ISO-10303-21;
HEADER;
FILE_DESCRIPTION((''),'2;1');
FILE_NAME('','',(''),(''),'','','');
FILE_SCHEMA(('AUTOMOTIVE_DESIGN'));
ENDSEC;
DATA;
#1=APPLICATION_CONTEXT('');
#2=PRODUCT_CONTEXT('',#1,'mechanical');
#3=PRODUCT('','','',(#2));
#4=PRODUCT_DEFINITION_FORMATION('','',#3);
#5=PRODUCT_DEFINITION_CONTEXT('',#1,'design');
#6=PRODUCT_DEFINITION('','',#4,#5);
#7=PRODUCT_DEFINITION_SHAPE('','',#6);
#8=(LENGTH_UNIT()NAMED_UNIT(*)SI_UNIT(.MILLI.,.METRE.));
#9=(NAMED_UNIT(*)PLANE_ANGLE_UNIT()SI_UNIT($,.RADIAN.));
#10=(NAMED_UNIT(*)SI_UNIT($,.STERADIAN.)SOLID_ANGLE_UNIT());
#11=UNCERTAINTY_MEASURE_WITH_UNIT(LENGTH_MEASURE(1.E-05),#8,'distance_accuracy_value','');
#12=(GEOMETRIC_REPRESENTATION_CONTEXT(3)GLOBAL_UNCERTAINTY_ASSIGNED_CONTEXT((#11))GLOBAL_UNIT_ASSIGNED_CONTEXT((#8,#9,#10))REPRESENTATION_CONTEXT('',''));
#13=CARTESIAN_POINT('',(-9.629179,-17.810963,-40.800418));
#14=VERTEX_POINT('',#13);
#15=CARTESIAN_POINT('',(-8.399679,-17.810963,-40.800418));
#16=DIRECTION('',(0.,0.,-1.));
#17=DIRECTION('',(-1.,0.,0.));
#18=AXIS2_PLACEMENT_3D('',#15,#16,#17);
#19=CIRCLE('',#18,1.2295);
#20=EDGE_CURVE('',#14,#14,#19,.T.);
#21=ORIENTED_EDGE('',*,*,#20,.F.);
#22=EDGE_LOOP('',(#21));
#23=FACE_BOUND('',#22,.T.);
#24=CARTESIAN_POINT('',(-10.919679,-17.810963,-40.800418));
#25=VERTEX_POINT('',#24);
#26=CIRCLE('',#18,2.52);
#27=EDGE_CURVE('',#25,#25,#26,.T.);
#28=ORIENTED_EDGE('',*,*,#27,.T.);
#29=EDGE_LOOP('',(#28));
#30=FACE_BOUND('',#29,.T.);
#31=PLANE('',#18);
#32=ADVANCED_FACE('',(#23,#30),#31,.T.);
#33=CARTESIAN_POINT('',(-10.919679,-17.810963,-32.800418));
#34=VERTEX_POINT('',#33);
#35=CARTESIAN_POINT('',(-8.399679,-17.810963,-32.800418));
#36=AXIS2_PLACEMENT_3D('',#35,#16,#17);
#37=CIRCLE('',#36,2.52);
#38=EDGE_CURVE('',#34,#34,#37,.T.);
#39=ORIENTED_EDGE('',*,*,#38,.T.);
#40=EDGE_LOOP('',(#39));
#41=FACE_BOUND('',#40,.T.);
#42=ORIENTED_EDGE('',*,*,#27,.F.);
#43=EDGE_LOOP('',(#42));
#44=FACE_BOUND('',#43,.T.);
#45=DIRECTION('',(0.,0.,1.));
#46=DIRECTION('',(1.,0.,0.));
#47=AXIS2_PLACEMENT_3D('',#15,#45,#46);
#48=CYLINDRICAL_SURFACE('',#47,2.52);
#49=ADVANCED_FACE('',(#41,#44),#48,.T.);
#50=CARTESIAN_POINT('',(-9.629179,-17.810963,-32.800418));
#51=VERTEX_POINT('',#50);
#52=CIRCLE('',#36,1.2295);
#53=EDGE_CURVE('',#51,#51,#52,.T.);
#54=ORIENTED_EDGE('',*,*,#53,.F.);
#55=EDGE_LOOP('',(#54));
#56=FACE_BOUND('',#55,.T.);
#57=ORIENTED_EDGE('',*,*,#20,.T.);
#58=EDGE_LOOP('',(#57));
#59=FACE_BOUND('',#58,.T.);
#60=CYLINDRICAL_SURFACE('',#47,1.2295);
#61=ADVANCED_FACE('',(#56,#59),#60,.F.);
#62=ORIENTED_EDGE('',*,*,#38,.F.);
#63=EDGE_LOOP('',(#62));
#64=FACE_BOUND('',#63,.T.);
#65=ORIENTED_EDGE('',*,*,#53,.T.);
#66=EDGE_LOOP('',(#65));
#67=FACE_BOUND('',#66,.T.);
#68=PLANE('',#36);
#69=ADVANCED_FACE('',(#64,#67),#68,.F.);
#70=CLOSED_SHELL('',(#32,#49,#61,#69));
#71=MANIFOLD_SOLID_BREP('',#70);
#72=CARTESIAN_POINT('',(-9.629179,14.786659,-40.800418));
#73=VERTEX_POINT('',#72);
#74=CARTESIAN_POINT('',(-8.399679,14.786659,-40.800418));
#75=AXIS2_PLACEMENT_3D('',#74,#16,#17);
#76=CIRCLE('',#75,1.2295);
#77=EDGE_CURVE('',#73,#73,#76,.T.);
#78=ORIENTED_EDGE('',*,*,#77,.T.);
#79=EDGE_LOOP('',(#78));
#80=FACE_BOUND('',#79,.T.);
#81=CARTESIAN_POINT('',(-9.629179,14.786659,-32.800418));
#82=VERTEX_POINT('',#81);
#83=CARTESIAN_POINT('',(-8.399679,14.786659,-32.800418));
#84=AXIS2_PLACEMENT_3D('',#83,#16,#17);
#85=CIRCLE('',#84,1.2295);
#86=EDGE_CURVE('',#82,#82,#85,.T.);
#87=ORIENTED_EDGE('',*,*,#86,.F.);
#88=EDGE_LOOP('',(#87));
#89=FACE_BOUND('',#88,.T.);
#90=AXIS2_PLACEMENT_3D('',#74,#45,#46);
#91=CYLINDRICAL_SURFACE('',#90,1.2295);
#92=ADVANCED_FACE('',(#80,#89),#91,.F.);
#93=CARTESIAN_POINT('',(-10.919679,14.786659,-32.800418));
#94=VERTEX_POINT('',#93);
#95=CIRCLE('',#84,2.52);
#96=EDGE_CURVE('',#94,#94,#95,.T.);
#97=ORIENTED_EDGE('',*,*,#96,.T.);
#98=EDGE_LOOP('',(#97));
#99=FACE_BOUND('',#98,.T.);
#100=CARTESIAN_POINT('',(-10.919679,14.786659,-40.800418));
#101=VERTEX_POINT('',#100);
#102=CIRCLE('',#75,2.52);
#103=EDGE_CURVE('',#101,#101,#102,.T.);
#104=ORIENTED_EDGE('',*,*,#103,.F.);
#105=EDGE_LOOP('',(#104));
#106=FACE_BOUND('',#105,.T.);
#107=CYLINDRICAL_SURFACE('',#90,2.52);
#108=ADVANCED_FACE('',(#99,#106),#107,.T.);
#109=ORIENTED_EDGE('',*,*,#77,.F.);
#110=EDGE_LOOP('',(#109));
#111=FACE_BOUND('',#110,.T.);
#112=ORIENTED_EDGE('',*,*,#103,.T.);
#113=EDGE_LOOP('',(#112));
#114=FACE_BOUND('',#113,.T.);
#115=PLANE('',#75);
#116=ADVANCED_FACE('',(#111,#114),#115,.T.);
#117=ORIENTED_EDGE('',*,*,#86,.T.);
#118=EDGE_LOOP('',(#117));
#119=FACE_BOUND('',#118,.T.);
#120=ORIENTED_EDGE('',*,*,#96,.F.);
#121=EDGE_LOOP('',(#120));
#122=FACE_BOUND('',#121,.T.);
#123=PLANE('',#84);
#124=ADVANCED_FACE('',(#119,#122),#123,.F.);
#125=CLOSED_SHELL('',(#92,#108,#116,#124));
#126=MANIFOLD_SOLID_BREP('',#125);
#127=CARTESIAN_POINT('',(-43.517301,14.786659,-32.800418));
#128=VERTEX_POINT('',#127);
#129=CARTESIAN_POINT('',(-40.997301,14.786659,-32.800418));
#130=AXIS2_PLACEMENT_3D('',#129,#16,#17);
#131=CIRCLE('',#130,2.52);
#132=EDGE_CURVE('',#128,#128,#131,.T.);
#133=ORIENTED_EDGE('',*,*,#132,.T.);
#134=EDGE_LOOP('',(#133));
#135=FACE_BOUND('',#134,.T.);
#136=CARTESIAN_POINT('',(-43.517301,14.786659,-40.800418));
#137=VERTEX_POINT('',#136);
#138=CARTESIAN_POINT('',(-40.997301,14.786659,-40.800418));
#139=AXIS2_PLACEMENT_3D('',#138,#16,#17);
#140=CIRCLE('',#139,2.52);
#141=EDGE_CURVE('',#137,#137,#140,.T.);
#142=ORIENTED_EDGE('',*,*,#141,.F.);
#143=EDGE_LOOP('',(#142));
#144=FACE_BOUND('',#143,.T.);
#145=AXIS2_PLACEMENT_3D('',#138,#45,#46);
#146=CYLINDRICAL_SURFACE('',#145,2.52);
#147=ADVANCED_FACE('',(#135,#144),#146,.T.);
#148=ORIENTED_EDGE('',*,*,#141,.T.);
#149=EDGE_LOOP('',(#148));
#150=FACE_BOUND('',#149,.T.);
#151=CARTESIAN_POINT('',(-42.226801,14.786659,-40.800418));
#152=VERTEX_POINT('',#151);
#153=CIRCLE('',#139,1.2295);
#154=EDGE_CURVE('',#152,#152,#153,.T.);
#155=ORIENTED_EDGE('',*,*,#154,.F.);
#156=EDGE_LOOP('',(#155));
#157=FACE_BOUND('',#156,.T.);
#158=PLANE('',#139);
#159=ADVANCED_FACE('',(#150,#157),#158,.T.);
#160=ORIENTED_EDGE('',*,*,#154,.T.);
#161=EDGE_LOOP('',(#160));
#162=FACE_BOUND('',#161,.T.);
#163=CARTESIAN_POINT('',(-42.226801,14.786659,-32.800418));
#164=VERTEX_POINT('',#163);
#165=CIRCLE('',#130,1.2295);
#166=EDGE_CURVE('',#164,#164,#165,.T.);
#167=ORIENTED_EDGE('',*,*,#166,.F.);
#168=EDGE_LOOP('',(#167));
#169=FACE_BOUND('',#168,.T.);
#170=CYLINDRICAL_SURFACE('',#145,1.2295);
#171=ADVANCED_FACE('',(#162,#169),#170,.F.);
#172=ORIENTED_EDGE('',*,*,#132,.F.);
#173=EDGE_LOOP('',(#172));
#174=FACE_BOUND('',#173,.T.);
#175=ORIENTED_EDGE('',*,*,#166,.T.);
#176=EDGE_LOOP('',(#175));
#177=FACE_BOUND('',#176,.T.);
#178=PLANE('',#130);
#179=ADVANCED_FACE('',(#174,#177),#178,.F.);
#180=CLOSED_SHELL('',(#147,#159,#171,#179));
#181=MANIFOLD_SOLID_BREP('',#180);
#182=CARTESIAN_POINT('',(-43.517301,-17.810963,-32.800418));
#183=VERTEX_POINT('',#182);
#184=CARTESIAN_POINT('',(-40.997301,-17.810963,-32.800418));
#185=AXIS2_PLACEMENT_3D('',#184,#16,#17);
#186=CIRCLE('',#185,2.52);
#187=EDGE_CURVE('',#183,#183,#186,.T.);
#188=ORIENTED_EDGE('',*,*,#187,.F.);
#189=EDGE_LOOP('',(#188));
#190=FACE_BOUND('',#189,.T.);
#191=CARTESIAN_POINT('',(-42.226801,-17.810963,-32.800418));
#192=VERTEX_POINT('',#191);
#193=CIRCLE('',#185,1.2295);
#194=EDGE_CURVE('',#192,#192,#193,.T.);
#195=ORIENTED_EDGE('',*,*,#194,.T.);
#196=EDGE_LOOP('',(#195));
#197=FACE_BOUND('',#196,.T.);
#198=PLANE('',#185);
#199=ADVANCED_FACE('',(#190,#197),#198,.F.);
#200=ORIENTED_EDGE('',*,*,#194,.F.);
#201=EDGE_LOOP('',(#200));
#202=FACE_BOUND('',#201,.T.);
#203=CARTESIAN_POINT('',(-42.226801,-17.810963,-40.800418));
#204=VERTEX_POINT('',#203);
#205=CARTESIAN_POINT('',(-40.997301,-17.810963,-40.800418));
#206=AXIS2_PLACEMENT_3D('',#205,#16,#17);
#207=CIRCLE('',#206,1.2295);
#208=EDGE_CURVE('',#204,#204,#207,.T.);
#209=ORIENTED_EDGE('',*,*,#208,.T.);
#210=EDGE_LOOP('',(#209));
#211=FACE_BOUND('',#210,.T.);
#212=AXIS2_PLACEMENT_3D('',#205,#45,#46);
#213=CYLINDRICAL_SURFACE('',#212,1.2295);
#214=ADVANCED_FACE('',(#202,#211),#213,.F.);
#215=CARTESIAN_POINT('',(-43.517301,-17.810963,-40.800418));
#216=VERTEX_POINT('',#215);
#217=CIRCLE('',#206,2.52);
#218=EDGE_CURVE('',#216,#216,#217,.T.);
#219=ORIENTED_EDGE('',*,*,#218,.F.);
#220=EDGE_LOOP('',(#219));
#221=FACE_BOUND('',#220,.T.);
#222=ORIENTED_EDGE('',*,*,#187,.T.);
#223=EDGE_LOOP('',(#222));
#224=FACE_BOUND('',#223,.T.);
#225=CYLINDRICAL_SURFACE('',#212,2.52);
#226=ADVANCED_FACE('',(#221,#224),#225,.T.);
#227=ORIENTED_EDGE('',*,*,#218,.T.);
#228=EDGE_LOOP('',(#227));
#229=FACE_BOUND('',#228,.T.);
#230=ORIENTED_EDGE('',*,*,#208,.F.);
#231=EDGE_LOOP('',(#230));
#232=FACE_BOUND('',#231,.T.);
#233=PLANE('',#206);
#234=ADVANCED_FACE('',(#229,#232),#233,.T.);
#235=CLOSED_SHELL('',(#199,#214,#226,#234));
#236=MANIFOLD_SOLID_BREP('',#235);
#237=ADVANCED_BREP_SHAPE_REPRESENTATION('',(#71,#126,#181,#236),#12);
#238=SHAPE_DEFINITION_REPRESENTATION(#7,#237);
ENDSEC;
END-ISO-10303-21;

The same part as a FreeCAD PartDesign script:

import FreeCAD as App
import Part
import Sketcher
from FreeCAD import Vector
Q = App.Units.Quantity

doc = App.newDocument("Part")
params = doc.addObject("Spreadsheet::Sheet", "Params")
for row, (alias, value) in enumerate([
    ("sketch1_diameter", "5.04 mm"),
    ("pad1_length", "8 mm"),
    ("sketch2_diameter", "5.04 mm"),
    ("pad2_length", "8 mm"),
    ("sketch3_diameter", "5.04 mm"),
    ("pad3_length", "8 mm"),
    ("sketch4_diameter", "5.04 mm"),
    ("pad4_length", "8 mm"),
], start=1):
    params.set(f"A{row}", alias)
    params.set(f"B{row}", "=" + value)
    params.setAlias(f"B{row}", alias)

body = doc.addObject("PartDesign::Body", "Body")

sketch1 = body.newObject("Sketcher::SketchObject", "Sketch")
sketch1.AttachmentSupport = (doc.getObject("XY_Plane"), [""])
sketch1.MapMode = "FlatFace"
sketch1.AttachmentOffset = App.Placement(Vector(0, 0, -32.800418), App.Rotation())
sketch1.addGeometry([
    Part.Circle(Vector(-41, 14.8, 0), Vector(0, 0, 1), 2.5),
    Part.Circle(Vector(-41, 14.8, 0), Vector(0, 0, 1), 1.2),
], False)
sketch1.addConstraint([
    Sketcher.Constraint("Coincident", 1, 3, 0, 3),
    Sketcher.Constraint("Diameter", 0, Q("5.04 mm")),
    Sketcher.Constraint("Diameter", 1, Q("2.459 mm")),
    Sketcher.Constraint("DistanceX", 0, 3, -1, 1, Q("40.997301 mm")),
    Sketcher.Constraint("DistanceY", -1, 1, 0, 3, Q("14.786659 mm")),
])
sketch1.setExpression("Constraints[1]", "Params.sketch1_diameter")
pad1 = body.newObject("PartDesign::Pad", "Pad")
pad1.Profile = sketch1
pad1.setExpression("Length", "Params.pad1_length")
pad1.Reversed = True
body2 = doc.addObject("PartDesign::Body", "Body001")

sketch2 = body2.newObject("Sketcher::SketchObject", "Sketch001")
sketch2.AttachmentSupport = (doc.getObject("XY_Plane001"), [""])
sketch2.MapMode = "FlatFace"
sketch2.AttachmentOffset = App.Placement(Vector(0, 0, -32.800418), App.Rotation())
sketch2.addGeometry([
    Part.Circle(Vector(-8.4, 14.8, 0), Vector(0, 0, 1), 2.5),
    Part.Circle(Vector(-8.4, 14.8, 0), Vector(0, 0, 1), 1.2),
], False)
sketch2.addConstraint([
    Sketcher.Constraint("Coincident", 1, 3, 0, 3),
    Sketcher.Constraint("Diameter", 0, Q("5.04 mm")),
    Sketcher.Constraint("Diameter", 1, Q("2.459 mm")),
    Sketcher.Constraint("DistanceX", 0, 3, -1, 1, Q("8.399679 mm")),
    Sketcher.Constraint("DistanceY", -1, 1, 0, 3, Q("14.786659 mm")),
])
sketch2.setExpression("Constraints[1]", "Params.sketch2_diameter")
pad2 = body2.newObject("PartDesign::Pad", "Pad001")
pad2.Profile = sketch2
pad2.setExpression("Length", "Params.pad2_length")
pad2.Reversed = True
body3 = doc.addObject("PartDesign::Body", "Body002")

sketch3 = body3.newObject("Sketcher::SketchObject", "Sketch002")
sketch3.AttachmentSupport = (doc.getObject("XY_Plane002"), [""])
sketch3.MapMode = "FlatFace"
sketch3.AttachmentOffset = App.Placement(Vector(0, 0, -32.800418), App.Rotation())
sketch3.addGeometry([
    Part.Circle(Vector(-8.4, -17.8, 0), Vector(0, 0, 1), 2.5),
    Part.Circle(Vector(-8.4, -17.8, 0), Vector(0, 0, 1), 1.2),
], False)
sketch3.addConstraint([
    Sketcher.Constraint("Coincident", 1, 3, 0, 3),
    Sketcher.Constraint("Diameter", 0, Q("5.04 mm")),
    Sketcher.Constraint("Diameter", 1, Q("2.459 mm")),
    Sketcher.Constraint("DistanceX", 0, 3, -1, 1, Q("8.399679 mm")),
    Sketcher.Constraint("DistanceY", 0, 3, -1, 1, Q("17.810963 mm")),
])
sketch3.setExpression("Constraints[1]", "Params.sketch3_diameter")
pad3 = body3.newObject("PartDesign::Pad", "Pad002")
pad3.Profile = sketch3
pad3.setExpression("Length", "Params.pad3_length")
pad3.Reversed = True
body4 = doc.addObject("PartDesign::Body", "Body003")

sketch4 = body4.newObject("Sketcher::SketchObject", "Sketch003")
sketch4.AttachmentSupport = (doc.getObject("XY_Plane003"), [""])
sketch4.MapMode = "FlatFace"
sketch4.AttachmentOffset = App.Placement(Vector(0, 0, -32.800418), App.Rotation())
sketch4.addGeometry([
    Part.Circle(Vector(-41, -17.8, 0), Vector(0, 0, 1), 2.5),
    Part.Circle(Vector(-41, -17.8, 0), Vector(0, 0, 1), 1.2),
], False)
sketch4.addConstraint([
    Sketcher.Constraint("Coincident", 1, 3, 0, 3),
    Sketcher.Constraint("Diameter", 0, Q("5.04 mm")),
    Sketcher.Constraint("Diameter", 1, Q("2.459 mm")),
    Sketcher.Constraint("DistanceX", 0, 3, -1, 1, Q("40.997301 mm")),
    Sketcher.Constraint("DistanceY", 0, 3, -1, 1, Q("17.810963 mm")),
])
sketch4.setExpression("Constraints[1]", "Params.sketch4_diameter")
pad4 = body4.newObject("PartDesign::Pad", "Pad003")
pad4.Profile = sketch4
pad4.setExpression("Length", "Params.pad4_length")
pad4.Reversed = True

doc.recompute()
